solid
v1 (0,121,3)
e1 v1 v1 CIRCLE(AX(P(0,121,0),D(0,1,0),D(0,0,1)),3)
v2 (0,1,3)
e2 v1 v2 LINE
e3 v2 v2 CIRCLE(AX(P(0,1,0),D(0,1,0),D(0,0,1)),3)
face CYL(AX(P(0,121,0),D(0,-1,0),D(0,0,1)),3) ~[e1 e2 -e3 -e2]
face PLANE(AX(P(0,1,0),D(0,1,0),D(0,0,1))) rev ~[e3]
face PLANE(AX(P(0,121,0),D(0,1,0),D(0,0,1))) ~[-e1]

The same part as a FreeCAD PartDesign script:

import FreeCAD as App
import Part
import Sketcher

V = App.Vector
Q = App.Units.Quantity


def add_polygon(sketch, points):
    """Adds a closed chain of lines whose ends are joined by coincident constraints."""
    first, n = sketch.GeometryCount, len(points)
    for a, b in zip(points, points[1:] + points[:1]):
        sketch.addGeometry(Part.LineSegment(App.Vector(*a, 0), App.Vector(*b, 0)), False)
    for i in range(n):
        sketch.addConstraint(Sketcher.Constraint("Coincident", first + i, 2, first + (i + 1) % n, 1))

doc = App.newDocument("Part")
params = doc.addObject("Spreadsheet::Sheet", "Params")
for row, (alias, value) in enumerate([
    ("sketch1_width", "120 mm"),
    ("sketch1_height", "3 mm"),
    ("revolution_angle", "360 deg"),
], start=1):
    params.set(f"A{row}", alias)
    params.set(f"B{row}", "=" + value)
    params.setAlias(f"B{row}", alias)

body = doc.addObject("PartDesign::Body", "Body")

sketch1 = doc.addObject("Sketcher::SketchObject", "Sketch")
body.addObject(sketch1)
sketch1.AttachmentSupport = (doc.YZ_Plane, [""])
sketch1.MapMode = "FlatFace"
add_polygon(sketch1, [(121, 0), (121, 3), (1, 3), (1, 0)])
sketch1.addConstraint([
    Sketcher.Constraint("Vertical", 0),
    Sketcher.Constraint("Horizontal", 1),
    Sketcher.Constraint("Vertical", 2),
    Sketcher.Constraint("Horizontal", 3),
    Sketcher.Constraint("PointOnObject", 2, 2, -1),
    Sketcher.Constraint("DistanceX", 1, 2, 1, 1, Q("120 mm")),
    Sketcher.Constraint("DistanceY", 0, 1, 0, 2, Q("3 mm")),
    Sketcher.Constraint("DistanceX", -1, 1, 1, 2, Q("1 mm")),
])
sketch1.setExpression("Constraints[9]", "Params.sketch1_width")
sketch1.setExpression("Constraints[10]", "Params.sketch1_height")
revolution = doc.addObject("PartDesign::Revolution", "Revolution")
body.addObject(revolution)
revolution.Profile = sketch1
revolution.ReferenceAxis = (sketch1, ["H_Axis"])
revolution.setExpression("Angle", "Params.revolution_angle")

doc.recompute()
